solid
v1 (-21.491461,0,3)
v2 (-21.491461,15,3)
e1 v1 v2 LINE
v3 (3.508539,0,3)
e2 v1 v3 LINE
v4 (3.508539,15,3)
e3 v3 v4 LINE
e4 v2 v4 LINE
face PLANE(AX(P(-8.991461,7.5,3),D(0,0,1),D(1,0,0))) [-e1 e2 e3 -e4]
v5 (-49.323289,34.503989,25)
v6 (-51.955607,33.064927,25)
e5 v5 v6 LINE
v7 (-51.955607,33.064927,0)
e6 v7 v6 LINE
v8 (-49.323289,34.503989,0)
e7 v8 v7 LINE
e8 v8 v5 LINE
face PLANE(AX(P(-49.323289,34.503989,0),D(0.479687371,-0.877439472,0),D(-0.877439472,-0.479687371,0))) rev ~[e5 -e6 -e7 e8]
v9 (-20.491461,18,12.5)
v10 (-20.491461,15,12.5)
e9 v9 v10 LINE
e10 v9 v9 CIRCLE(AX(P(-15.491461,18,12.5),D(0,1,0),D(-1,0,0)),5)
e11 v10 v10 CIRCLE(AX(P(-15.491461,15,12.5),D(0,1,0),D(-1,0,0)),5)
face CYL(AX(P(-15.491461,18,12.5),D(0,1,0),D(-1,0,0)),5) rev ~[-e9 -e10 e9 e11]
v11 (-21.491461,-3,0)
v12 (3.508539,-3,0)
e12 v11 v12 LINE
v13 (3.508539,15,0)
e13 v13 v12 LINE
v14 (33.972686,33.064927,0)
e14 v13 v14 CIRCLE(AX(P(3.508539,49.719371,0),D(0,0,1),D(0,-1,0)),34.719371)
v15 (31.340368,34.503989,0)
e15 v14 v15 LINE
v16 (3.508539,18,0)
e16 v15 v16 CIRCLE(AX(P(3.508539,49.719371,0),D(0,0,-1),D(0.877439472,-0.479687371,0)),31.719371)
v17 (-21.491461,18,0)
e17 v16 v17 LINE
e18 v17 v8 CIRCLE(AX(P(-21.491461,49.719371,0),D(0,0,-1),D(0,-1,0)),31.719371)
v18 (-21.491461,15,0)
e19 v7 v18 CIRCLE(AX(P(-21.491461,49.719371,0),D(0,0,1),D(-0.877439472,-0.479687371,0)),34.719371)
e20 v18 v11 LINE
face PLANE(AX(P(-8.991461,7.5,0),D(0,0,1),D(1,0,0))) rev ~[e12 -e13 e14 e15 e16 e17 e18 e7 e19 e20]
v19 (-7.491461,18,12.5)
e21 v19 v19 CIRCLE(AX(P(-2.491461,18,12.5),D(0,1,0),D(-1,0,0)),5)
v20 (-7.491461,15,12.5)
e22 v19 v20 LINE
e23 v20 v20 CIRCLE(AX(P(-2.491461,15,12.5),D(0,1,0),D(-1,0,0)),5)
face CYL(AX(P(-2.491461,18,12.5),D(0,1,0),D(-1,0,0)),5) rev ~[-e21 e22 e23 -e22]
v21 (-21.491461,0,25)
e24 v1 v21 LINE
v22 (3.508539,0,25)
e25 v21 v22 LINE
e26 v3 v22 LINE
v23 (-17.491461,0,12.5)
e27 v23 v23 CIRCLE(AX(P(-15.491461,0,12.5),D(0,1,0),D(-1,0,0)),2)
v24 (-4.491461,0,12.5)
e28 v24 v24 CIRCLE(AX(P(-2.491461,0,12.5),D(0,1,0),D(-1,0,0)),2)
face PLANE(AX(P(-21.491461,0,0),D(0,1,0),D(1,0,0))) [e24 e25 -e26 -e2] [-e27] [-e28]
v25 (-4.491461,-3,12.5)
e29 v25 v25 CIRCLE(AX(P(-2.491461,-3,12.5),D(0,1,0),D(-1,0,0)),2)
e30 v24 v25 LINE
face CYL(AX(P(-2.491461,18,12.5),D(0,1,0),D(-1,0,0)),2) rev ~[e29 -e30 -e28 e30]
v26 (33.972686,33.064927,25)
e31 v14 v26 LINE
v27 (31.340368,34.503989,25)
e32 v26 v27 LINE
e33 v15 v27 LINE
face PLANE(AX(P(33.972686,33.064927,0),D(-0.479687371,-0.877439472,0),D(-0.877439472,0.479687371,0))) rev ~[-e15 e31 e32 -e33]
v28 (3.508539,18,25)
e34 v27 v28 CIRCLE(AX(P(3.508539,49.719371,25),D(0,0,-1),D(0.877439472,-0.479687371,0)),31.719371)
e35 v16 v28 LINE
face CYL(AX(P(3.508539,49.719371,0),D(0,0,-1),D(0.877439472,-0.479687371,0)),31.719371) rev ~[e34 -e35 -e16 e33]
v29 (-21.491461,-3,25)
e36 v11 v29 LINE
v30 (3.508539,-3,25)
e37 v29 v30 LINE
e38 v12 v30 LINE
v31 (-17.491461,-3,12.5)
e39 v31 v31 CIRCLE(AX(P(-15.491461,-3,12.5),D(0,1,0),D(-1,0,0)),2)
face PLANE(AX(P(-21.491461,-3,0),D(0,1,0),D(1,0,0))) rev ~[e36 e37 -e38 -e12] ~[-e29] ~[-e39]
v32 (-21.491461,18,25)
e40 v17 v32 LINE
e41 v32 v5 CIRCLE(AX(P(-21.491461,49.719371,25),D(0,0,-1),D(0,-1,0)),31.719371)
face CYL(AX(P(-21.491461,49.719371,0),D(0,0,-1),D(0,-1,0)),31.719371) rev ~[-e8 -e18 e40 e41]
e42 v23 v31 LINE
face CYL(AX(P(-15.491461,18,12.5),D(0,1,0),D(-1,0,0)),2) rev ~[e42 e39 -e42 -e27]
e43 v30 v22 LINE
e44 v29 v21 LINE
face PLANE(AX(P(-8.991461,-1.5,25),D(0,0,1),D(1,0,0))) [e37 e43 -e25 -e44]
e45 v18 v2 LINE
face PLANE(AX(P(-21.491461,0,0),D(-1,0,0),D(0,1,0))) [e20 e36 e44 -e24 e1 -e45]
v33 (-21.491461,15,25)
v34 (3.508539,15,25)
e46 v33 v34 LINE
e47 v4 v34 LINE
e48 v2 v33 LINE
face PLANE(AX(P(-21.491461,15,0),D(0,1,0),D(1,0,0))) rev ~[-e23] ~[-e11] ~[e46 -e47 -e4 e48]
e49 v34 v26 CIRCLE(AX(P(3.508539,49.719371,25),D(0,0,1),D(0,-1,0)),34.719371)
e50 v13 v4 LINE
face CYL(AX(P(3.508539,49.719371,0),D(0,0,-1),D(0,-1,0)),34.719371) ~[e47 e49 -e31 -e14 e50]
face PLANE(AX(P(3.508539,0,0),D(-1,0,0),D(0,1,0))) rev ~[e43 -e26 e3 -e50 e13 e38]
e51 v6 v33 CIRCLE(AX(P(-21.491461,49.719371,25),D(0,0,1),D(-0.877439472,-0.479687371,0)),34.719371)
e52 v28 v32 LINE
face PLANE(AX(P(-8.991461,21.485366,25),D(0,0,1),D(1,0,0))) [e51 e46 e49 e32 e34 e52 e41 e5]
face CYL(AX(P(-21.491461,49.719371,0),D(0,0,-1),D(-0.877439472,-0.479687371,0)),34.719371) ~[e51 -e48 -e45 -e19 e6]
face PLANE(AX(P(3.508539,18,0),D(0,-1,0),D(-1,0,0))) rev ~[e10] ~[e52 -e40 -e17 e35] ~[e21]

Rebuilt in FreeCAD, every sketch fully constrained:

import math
import FreeCAD as App
import Part
import Sketcher
from FreeCAD import Vector
Q = App.Units.Quantity

doc = App.newDocument("Part")
body = doc.addObject("PartDesign::Body", "Body")

sketch1 = body.newObject("Sketcher::SketchObject", "Sketch")
sketch1.AttachmentSupport = (doc.getObject("XY_Plane"), [""])
sketch1.MapMode = "FlatFace"
sketch1.addGeometry(Part.ArcOfCircle(Part.Circle(Vector(-21.491461, 49.719371, 0), Vector(0, 0, 1), 34.719371), math.radians(-151.335014), math.radians(-90)), False)
sketch1.addGeometry(Part.LineSegment(Vector(-21.491461, 15, 0), Vector(3.508539, 15, 0)), False)
sketch1.addGeometry(Part.ArcOfCircle(Part.Circle(Vector(3.508539, 49.719371, 0), Vector(0, 0, 1), 34.719371), math.radians(-90), math.radians(-28.664986)), False)
sketch1.addGeometry(Part.LineSegment(Vector(33.972686, 33.064927, 0), Vector(31.340368, 34.503989, 0)), False)
sketch1.addGeometry(Part.ArcOfCircle(Part.Circle(Vector(3.508539, 49.719371, 0), Vector(0, 0, 1), 31.719371), math.radians(-90), math.radians(-28.664986)), False)
sketch1.addGeometry(Part.LineSegment(Vector(3.508539, 18, 0), Vector(-21.491461, 18, 0)), False)
sketch1.addGeometry(Part.ArcOfCircle(Part.Circle(Vector(-21.491461, 49.719371, 0), Vector(0, 0, 1), 31.719371), math.radians(-151.335014), math.radians(-90)), False)
sketch1.addGeometry(Part.LineSegment(Vector(-49.323289, 34.503989, 0), Vector(-51.955607, 33.064927, 0)), False)
sketch1.addConstraint(Sketcher.Constraint("Tangent", 0, 2, 1, 1))
sketch1.addConstraint(Sketcher.Constraint("Tangent", 1, 2, 2, 1))
sketch1.addConstraint(Sketcher.Constraint("Coincident", 2, 2, 3, 1))
sketch1.addConstraint(Sketcher.Constraint("Coincident", 3, 2, 4, 2))
sketch1.addConstraint(Sketcher.Constraint("Tangent", 4, 1, 5, 1))
sketch1.addConstraint(Sketcher.Constraint("Tangent", 5, 2, 6, 2))
sketch1.addConstraint(Sketcher.Constraint("Coincident", 6, 1, 7, 1))
sketch1.addConstraint(Sketcher.Constraint("Coincident", 7, 2, 0, 1))
sketch1.addConstraint(Sketcher.Constraint("Horizontal", 1))
sketch1.addConstraint(Sketcher.Constraint("Horizontal", 5))
sketch1.addConstraint(Sketcher.Constraint("Coincident", 4, 3, 2, 3))
sketch1.addConstraint(Sketcher.Constraint("Coincident", 6, 3, 0, 3))
sketch1.addConstraint(Sketcher.Constraint("Equal", 0, 2))
sketch1.addConstraint(Sketcher.Constraint("Horizontal", 3, 2, 6, 1))
sketch1.addConstraint(Sketcher.Constraint("Horizontal", 2, 2, 7, 2))
sketch1.addConstraint(Sketcher.Constraint("DistanceX", 1, 1, 1, 2, Q("25 mm")))
sketch1.addConstraint(Sketcher.Constraint("Distance", 3, Q("3 mm")))
sketch1.addConstraint(Sketcher.Constraint("DistanceY", -1, 1, 0, 2, Q("15 mm")))
sketch1.addConstraint(Sketcher.Constraint("Radius", 0, Q("34.719371 mm")))
sketch1.addConstraint(Sketcher.Constraint("DistanceX", 0, 3, -1, 1, Q("21.491461 mm")))
sketch1.addConstraint(Sketcher.Constraint("DistanceY", -1, 1, 3, 2, Q("34.503989 mm")))
sketch1.addConstraint(Sketcher.Constraint("DistanceX", 3, 2, 2, 2, Q("2.632318 mm")))
pad1 = body.newObject("PartDesign::Pad", "Pad")
pad1.Profile = sketch1
pad1.Length = 25
body2 = doc.addObject("PartDesign::Body", "Body001")

sketch2 = body2.newObject("Sketcher::SketchObject", "Sketch001")
sketch2.AttachmentSupport = (doc.getObject("XY_Plane001"), [""])
sketch2.MapMode = "FlatFace"
sketch2.addGeometry(Part.LineSegment(Vector(-21.491461, 0, 0), Vector(-21.491461, -3, 0)), False)
sketch2.addGeometry(Part.LineSegment(Vector(-21.491461, -3, 0), Vector(3.508539, -3, 0)), False)
sketch2.addGeometry(Part.LineSegment(Vector(3.508539, -3, 0), Vector(3.508539, 0, 0)), False)
sketch2.addGeometry(Part.LineSegment(Vector(3.508539, 0, 0), Vector(-21.491461, 0, 0)), False)
sketch2.addConstraint(Sketcher.Constraint("Coincident", 0, 2, 1, 1))
sketch2.addConstraint(Sketcher.Constraint("Coincident", 1, 2, 2, 1))
sketch2.addConstraint(Sketcher.Constraint("Coincident", 2, 2, 3, 1))
sketch2.addConstraint(Sketcher.Constraint("Coincident", 3, 2, 0, 1))
sketch2.addConstraint(Sketcher.Constraint("Vertical", 0))
sketch2.addConstraint(Sketcher.Constraint("Horizontal", 1))
sketch2.addConstraint(Sketcher.Constraint("Vertical", 2))
sketch2.addConstraint(Sketcher.Constraint("Horizontal", 3))
sketch2.addConstraint(Sketcher.Constraint("PointOnObject", 2, 2, -1))
sketch2.addConstraint(Sketcher.Constraint("DistanceX", 1, 1, 1, 2, Q("25 mm")))
sketch2.addConstraint(Sketcher.Constraint("DistanceY", 0, 2, 0, 1, Q("3 mm")))
sketch2.addConstraint(Sketcher.Constraint("DistanceX", 0, 2, -1, 1, Q("21.491461 mm")))
pad2 = body2.newObject("PartDesign::Pad", "Pad001")
pad2.Profile = sketch2
pad2.Length = 25
body.AllowCompound = True
doc.recompute()

boolean = body.newObject("PartDesign::Boolean", "Boolean")
boolean.Type = "Fuse"
boolean.addObjects([body2])

sketch3 = body.newObject("Sketcher::SketchObject", "Sketch002")
sketch3.AttachmentSupport = (doc.getObject("XY_Plane"), [""])
sketch3.MapMode = "FlatFace"
sketch3.addGeometry(Part.LineSegment(Vector(-21.491461, 15, 0), Vector(-21.491461, 0, 0)), False)
sketch3.addGeometry(Part.LineSegment(Vector(-21.491461, 0, 0), Vector(3.508539, 0, 0)), False)
sketch3.addGeometry(Part.LineSegment(Vector(3.508539, 0, 0), Vector(3.508539, 15, 0)), False)
sketch3.addGeometry(Part.LineSegment(Vector(3.508539, 15, 0), Vector(-21.491461, 15, 0)), False)
sketch3.addConstraint(Sketcher.Constraint("Coincident", 0, 2, 1, 1))
sketch3.addConstraint(Sketcher.Constraint("Coincident", 1, 2, 2, 1))
sketch3.addConstraint(Sketcher.Constraint("Coincident", 2, 2, 3, 1))
sketch3.addConstraint(Sketcher.Constraint("Coincident", 3, 2, 0, 1))
sketch3.addConstraint(Sketcher.Constraint("Vertical", 0))
sketch3.addConstraint(Sketcher.Constraint("Horizontal", 1))
sketch3.addConstraint(Sketcher.Constraint("Vertical", 2))
sketch3.addConstraint(Sketcher.Constraint("Horizontal", 3))
sketch3.addConstraint(Sketcher.Constraint("PointOnObject", 0, 2, -1))
sketch3.addConstraint(Sketcher.Constraint("DistanceX", 1, 1, 1, 2, Q("25 mm")))
sketch3.addConstraint(Sketcher.Constraint("DistanceY", 0, 2, 0, 1, Q("15 mm")))
sketch3.addConstraint(Sketcher.Constraint("DistanceX", 0, 2, -1, 1, Q("21.491461 mm")))
pad3 = body.newObject("PartDesign::Pad", "Pad002")
pad3.Profile = sketch3
pad3.Length = 3

sketch4 = body.newObject("Sketcher::SketchObject", "Sketch003")
sketch4.AttachmentSupport = (doc.getObject("XZ_Plane"), [""])
sketch4.MapMode = "FlatFace"
sketch4.AttachmentOffset = App.Placement(Vector(0, 0, -18), App.Rotation())
sketch4.addGeometry(Part.Circle(Vector(-15.491461, 12.5, 0), Vector(0, 0, 1), 2), False)
sketch4.addGeometry(Part.Circle(Vector(-2.491461, 12.5, 0), Vector(0, 0, 1), 2), False)
sketch4.addConstraint(Sketcher.Constraint("Equal", 0, 1))
sketch4.addConstraint(Sketcher.Constraint("Horizontal", 0, 3, 1, 3))
sketch4.addConstraint(Sketcher.Constraint("Diameter", 0, Q("4 mm")))
sketch4.addConstraint(Sketcher.Constraint("DistanceX", 0, 3, 1, 3, Q("13 mm")))
sketch4.addConstraint(Sketcher.Constraint("DistanceY", -1, 1, 0, 3, Q("12.5 mm")))
sketch4.addConstraint(Sketcher.Constraint("DistanceX", 0, 3, -1, 1, Q("15.491461 mm")))
pocket1 = body.newObject("PartDesign::Pocket", "Pocket")
pocket1.Profile = sketch4
pocket1.Length = 25
pocket1.Reversed = True

sketch5 = body.newObject("Sketcher::SketchObject", "Sketch004")
sketch5.AttachmentSupport = (doc.getObject("XZ_Plane"), [""])
sketch5.MapMode = "FlatFace"
sketch5.AttachmentOffset = App.Placement(Vector(0, 0, -18), App.Rotation())
sketch5.addGeometry(Part.Circle(Vector(-15.491461, 12.5, 0), Vector(0, 0, 1), 5), False)
sketch5.addGeometry(Part.Circle(Vector(-15.491461, 12.5, 0), Vector(0, 0, 1), 2), False)
sketch5.addGeometry(Part.Circle(Vector(-2.491461, 12.5, 0), Vector(0, 0, 1), 5), False)
sketch5.addGeometry(Part.Circle(Vector(-2.491461, 12.5, 0), Vector(0, 0, 1), 2), False)
sketch5.addConstraint(Sketcher.Constraint("Coincident", 1, 3, 0, 3))
sketch5.addConstraint(Sketcher.Constraint("Coincident", 3, 3, 2, 3))
sketch5.addConstraint(Sketcher.Constraint("Equal", 0, 2))
sketch5.addConstraint(Sketcher.Constraint("Equal", 1, 3))
sketch5.addConstraint(Sketcher.Constraint("Horizontal", 1, 3, 2, 3))
sketch5.addConstraint(Sketcher.Constraint("Diameter", 0, Q("10 mm")))
sketch5.addConstraint(Sketcher.Constraint("Diameter", 1, Q("4 mm")))
sketch5.addConstraint(Sketcher.Constraint("DistanceX", 0, 3, 2, 3, Q("13 mm")))
sketch5.addConstraint(Sketcher.Constraint("DistanceY", -1, 1, 0, 3, Q("12.5 mm")))
sketch5.addConstraint(Sketcher.Constraint("DistanceX", 0, 3, -1, 1, Q("15.491461 mm")))
pocket2 = body.newObject("PartDesign::Pocket", "Pocket001")
pocket2.Profile = sketch5
pocket2.Length = 10
pocket2.Reversed = True

doc.recompute()
